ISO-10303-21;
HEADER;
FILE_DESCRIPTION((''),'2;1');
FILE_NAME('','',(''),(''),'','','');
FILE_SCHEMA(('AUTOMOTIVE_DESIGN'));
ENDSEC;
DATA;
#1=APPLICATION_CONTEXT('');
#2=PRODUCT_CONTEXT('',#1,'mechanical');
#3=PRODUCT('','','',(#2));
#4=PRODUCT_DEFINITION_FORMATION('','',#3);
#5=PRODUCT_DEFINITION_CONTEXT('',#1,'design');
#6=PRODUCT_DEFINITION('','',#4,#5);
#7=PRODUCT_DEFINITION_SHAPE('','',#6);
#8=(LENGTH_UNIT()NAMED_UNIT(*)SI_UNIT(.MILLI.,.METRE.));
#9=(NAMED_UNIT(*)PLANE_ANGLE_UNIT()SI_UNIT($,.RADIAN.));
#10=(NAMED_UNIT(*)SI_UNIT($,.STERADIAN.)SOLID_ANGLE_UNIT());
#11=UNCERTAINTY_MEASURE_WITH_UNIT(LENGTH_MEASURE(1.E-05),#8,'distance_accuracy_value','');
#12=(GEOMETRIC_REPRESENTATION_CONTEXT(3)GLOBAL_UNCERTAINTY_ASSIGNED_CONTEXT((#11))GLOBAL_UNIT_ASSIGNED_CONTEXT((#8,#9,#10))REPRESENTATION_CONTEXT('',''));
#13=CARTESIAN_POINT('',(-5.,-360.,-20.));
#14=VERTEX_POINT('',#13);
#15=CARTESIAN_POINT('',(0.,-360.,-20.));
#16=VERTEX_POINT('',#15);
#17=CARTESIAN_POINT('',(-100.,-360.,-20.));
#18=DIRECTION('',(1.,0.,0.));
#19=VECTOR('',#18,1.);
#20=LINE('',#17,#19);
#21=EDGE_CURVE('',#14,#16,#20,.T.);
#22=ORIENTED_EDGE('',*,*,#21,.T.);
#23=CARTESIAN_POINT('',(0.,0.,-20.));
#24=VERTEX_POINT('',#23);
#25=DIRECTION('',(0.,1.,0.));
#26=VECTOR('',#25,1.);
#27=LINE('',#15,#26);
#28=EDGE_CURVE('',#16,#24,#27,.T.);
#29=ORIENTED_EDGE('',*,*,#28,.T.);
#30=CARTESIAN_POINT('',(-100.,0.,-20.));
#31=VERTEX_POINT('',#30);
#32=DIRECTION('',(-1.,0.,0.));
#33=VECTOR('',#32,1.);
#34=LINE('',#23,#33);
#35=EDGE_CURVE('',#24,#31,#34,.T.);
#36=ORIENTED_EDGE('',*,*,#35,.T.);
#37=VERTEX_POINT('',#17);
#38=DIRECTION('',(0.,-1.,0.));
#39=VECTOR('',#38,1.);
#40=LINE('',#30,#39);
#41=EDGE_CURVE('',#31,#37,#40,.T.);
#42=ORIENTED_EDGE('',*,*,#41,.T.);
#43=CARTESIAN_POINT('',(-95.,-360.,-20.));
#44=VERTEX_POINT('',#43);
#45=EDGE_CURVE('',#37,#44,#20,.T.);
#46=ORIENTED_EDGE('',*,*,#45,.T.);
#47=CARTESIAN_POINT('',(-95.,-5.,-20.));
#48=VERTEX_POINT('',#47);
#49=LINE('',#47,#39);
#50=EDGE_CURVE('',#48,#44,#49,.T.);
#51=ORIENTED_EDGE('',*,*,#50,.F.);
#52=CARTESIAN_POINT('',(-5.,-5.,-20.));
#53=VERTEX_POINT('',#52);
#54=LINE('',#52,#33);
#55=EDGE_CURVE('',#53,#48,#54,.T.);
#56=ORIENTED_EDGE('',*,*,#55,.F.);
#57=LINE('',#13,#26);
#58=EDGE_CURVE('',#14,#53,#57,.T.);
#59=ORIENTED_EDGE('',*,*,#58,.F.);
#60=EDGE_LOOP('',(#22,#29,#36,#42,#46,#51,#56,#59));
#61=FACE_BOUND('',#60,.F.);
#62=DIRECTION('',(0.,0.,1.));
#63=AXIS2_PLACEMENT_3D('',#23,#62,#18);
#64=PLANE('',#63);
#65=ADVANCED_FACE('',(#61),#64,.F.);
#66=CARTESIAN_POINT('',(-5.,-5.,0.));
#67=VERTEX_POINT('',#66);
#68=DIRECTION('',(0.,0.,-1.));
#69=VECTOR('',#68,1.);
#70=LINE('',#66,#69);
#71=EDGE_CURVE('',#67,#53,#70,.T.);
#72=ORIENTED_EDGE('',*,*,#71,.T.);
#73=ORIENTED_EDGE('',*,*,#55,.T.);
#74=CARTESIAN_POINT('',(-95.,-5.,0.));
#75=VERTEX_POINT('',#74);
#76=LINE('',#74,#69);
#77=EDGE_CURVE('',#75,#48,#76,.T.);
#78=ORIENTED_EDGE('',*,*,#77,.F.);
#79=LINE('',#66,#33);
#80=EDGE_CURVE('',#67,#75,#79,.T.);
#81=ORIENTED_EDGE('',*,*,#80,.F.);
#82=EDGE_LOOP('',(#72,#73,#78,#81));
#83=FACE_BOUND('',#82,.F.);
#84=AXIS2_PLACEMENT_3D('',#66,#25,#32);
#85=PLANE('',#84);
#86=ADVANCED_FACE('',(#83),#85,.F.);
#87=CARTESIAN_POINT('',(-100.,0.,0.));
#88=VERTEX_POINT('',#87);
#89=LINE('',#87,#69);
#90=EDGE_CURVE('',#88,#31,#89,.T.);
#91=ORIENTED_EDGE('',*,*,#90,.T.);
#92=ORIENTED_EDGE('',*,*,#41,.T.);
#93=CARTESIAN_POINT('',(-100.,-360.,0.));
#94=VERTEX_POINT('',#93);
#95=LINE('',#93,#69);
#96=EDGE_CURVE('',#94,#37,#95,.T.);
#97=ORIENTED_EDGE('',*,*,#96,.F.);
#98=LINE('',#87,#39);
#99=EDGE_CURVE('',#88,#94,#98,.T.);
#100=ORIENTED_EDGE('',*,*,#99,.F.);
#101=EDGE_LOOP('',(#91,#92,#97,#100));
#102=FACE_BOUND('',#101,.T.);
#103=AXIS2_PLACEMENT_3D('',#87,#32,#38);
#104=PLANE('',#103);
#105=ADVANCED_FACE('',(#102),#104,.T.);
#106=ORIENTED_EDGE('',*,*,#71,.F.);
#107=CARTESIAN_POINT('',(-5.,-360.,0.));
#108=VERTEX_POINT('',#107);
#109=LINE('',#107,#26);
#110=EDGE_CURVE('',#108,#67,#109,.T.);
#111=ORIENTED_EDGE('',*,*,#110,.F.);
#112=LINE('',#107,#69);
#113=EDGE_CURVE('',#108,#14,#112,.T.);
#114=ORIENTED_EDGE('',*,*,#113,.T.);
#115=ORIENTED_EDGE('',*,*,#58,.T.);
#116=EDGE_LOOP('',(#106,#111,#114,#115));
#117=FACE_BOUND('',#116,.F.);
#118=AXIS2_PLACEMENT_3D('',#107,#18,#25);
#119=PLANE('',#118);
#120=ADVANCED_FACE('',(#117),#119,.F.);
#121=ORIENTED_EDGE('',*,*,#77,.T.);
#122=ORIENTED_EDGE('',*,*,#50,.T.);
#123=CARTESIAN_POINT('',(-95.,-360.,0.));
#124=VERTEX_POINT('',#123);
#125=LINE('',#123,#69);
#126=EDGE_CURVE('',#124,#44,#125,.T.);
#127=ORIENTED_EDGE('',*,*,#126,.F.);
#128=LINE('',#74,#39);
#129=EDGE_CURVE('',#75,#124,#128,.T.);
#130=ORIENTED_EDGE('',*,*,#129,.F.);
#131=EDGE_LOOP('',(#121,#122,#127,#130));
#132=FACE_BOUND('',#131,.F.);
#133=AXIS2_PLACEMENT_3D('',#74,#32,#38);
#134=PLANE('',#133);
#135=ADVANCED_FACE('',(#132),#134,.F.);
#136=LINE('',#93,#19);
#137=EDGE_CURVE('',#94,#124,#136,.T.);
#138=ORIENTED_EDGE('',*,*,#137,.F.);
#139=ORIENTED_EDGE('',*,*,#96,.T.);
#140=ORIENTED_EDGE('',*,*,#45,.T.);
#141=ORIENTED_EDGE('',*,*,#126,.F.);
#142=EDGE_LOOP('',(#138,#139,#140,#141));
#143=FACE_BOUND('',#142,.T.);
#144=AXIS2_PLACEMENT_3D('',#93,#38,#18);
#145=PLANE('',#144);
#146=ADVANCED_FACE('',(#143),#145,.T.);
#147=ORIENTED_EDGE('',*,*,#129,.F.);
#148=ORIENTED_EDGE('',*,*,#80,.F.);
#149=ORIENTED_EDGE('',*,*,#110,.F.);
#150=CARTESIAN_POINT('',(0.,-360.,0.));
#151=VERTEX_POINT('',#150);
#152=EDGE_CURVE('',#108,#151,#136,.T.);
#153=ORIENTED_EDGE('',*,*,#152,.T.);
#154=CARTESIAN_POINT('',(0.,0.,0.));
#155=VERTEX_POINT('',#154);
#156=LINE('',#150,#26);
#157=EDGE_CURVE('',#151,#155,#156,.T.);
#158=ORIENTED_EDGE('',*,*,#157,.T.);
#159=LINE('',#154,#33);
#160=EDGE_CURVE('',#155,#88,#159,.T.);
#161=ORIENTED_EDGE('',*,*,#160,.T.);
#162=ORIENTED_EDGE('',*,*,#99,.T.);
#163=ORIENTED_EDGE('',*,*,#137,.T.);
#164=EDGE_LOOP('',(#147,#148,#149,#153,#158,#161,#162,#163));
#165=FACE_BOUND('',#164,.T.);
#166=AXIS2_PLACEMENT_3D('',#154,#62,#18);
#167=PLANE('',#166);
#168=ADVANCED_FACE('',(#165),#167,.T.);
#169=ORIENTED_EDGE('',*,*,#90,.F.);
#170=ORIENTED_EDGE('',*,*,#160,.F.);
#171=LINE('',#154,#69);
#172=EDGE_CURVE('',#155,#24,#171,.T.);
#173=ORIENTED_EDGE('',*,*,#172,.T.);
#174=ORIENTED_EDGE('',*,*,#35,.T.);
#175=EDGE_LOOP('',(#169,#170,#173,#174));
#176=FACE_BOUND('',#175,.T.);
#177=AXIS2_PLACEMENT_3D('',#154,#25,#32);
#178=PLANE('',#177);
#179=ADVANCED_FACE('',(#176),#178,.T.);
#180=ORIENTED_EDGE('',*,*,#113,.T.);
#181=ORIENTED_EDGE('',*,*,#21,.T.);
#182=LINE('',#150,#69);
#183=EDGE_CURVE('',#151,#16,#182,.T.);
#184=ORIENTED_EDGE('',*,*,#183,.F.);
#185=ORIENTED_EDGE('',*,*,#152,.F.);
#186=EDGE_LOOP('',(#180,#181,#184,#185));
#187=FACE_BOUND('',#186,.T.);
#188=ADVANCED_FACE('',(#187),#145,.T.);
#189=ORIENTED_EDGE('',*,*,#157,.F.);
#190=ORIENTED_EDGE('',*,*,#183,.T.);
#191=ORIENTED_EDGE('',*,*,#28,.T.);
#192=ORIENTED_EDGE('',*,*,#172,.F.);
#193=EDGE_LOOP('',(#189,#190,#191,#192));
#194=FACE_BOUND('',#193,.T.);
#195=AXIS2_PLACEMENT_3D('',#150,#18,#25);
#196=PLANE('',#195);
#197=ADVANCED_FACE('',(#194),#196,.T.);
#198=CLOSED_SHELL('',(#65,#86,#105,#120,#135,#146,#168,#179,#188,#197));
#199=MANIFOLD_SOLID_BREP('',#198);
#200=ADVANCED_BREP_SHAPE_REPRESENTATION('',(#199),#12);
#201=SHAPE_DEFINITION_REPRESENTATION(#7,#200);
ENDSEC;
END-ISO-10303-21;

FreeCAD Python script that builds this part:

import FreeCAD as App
import Part
import Sketcher


def add_polygon(sketch, points):
    """Adds a closed chain of lines whose ends are joined by coincident constraints."""
    first, n = sketch.GeometryCount, len(points)
    for a, b in zip(points, points[1:] + points[:1]):
        sketch.addGeometry(Part.LineSegment(App.Vector(*a, 0), App.Vector(*b, 0)), False)
    for i in range(n):
        sketch.addConstraint(Sketcher.Constraint("Coincident", first + i, 2, first + (i + 1) % n, 1))

doc = App.newDocument("Part")
params = doc.addObject("Spreadsheet::Sheet", "Params")
for row, (alias, value) in enumerate([
    ("sketch1_width", "100 mm"),
    ("sketch1_height", "360 mm"),
    ("pad1_length", "20 mm"),
    ("sketch2_width", "90 mm"),
    ("sketch2_height", "355 mm"),
    ("pocket1_length", "20 mm"),
], start=1):
    params.set(f"A{row}", alias)
    params.set(f"B{row}", "=" + value)
    params.setAlias(f"B{row}", alias)

body = doc.addObject("PartDesign::Body", "Body")

sketch1 = body.newObject("Sketcher::SketchObject", "Sketch")
sketch1.AttachmentSupport = (doc.getObject("XY_Plane"), [""])
sketch1.MapMode = "FlatFace"
add_polygon(sketch1, [(0, -360), (0, 0), (-100, 0), (-100, -360)])
sketch1.addConstraint([
    Sketcher.Constraint("Vertical", 0),
    Sketcher.Constraint("Horizontal", 1),
    Sketcher.Constraint("Vertical", 2),
    Sketcher.Constraint("Horizontal", 3),
    Sketcher.Constraint("Coincident", 0, 2, -1, 1),
    Sketcher.Constraint("DistanceX", 1, 2, 1, 1, 100.0),
    Sketcher.Constraint("DistanceY", 0, 1, 0, 2, 360.0),
])
sketch1.setExpression("Constraints[9]", "Params.sketch1_width")
sketch1.setExpression("Constraints[10]", "Params.sketch1_height")
pad1 = body.newObject("PartDesign::Pad", "Pad")
pad1.Profile = sketch1
pad1.setExpression("Length", "Params.pad1_length")
pad1.Reversed = True

sketch2 = body.newObject("Sketcher::SketchObject", "Sketch001")
sketch2.AttachmentSupport = (doc.getObject("XY_Plane"), [""])
sketch2.MapMode = "FlatFace"
add_polygon(sketch2, [(-95, -360), (-5, -360), (-5, -5), (-95, -5)])
sketch2.addConstraint([
    Sketcher.Constraint("Horizontal", 0),
    Sketcher.Constraint("Vertical", 1),
    Sketcher.Constraint("Horizontal", 2),
    Sketcher.Constraint("Vertical", 3),
    Sketcher.Constraint("DistanceX", 0, 2, -1, 1, 5.0),
    Sketcher.Constraint("DistanceY", 1, 2, -1, 1, 5.0),
    Sketcher.Constraint("DistanceX", 0, 1, 0, 2, 90.0),
    Sketcher.Constraint("DistanceY", 1, 1, 1, 2, 355.0),
])
sketch2.setExpression("Constraints[10]", "Params.sketch2_width")
sketch2.setExpression("Constraints[11]", "Params.sketch2_height")
pocket1 = body.newObject("PartDesign::Pocket", "Pocket")
pocket1.Profile = sketch2
pocket1.setExpression("Length", "Params.pocket1_length")

doc.recompute()
